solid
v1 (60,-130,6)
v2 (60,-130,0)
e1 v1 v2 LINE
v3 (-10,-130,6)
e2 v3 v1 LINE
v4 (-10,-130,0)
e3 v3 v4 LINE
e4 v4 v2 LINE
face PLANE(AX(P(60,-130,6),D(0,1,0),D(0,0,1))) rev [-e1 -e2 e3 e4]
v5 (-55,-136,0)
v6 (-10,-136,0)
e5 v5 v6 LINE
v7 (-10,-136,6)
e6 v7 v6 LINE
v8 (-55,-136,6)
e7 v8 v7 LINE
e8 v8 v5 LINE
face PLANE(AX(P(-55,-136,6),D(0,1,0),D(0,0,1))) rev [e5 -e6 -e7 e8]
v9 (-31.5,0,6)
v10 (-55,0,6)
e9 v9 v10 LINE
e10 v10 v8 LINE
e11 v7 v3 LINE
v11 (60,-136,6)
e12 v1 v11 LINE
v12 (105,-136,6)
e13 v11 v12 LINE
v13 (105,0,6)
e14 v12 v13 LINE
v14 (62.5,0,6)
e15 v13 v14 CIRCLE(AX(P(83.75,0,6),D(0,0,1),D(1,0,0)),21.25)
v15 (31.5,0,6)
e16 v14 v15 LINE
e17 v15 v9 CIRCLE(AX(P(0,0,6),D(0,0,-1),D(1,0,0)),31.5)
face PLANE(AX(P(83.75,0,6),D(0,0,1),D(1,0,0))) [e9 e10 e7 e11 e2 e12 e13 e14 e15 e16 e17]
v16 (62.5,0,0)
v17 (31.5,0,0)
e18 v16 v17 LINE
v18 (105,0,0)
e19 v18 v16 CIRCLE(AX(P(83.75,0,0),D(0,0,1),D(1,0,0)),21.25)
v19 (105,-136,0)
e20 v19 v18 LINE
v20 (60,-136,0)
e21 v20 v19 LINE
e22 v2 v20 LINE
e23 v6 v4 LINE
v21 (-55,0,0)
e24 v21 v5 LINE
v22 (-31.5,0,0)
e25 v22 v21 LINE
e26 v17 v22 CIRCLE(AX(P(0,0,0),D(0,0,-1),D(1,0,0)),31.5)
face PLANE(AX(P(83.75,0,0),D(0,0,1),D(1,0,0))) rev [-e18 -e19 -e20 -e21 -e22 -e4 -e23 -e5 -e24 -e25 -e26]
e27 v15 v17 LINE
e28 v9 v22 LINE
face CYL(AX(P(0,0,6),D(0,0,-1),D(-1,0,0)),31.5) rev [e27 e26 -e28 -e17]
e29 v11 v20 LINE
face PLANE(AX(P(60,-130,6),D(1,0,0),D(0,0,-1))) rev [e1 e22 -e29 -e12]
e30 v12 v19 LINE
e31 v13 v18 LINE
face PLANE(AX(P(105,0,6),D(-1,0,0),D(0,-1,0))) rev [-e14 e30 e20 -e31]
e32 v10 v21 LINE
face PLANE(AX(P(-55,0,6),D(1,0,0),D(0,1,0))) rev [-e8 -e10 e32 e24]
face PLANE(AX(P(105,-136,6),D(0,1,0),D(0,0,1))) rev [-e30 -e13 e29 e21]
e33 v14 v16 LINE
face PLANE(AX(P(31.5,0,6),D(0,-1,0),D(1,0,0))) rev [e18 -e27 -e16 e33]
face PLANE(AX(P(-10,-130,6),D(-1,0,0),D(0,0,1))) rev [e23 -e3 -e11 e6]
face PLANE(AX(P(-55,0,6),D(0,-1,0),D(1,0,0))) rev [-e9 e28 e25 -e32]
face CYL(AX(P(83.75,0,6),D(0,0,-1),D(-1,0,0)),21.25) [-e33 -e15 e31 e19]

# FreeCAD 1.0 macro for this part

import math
import FreeCAD as App
import Part
import Sketcher

doc = App.newDocument("Part")
params = doc.addObject("Spreadsheet::Sheet", "Params")
for row, (alias, value) in enumerate([
    ("sketch1_radius", "31.5 mm"),
    ("sketch1_width", "45 mm"),
    ("sketch1_width2", "70 mm"),
    ("sketch1_width3", "31 mm"),
    ("sketch1_height", "136 mm"),
    ("pad1_length", "6 mm"),
], start=1):
    params.set(f"A{row}", alias)
    params.set(f"B{row}", "=" + value)
    params.setAlias(f"B{row}", alias)

body = doc.addObject("PartDesign::Body", "Body")

# Sketch on XY plane
sketch1 = body.newObject("Sketcher::SketchObject", "Sketch")
sketch1.AttachmentSupport = (doc.getObject("XY_Plane"), [""])
sketch1.MapMode = "FlatFace"
sketch1.addGeometry(Part.LineSegment(App.Vector(-32, 0, 0), App.Vector(-55, 0, 0)), False)
sketch1.addGeometry(Part.LineSegment(App.Vector(-55, 0, 0), App.Vector(-55, -136, 0)), False)
sketch1.addGeometry(Part.LineSegment(App.Vector(-55, -136, 0), App.Vector(-10, -136, 0)), False)
sketch1.addGeometry(Part.LineSegment(App.Vector(-10, -136, 0), App.Vector(-10, -130, 0)), False)
sketch1.addGeometry(Part.LineSegment(App.Vector(-10, -130, 0), App.Vector(60, -130, 0)), False)
sketch1.addGeometry(Part.LineSegment(App.Vector(60, -130, 0), App.Vector(60, -136, 0)), False)
sketch1.addGeometry(Part.LineSegment(App.Vector(60, -136, 0), App.Vector(105, -136, 0)), False)
sketch1.addGeometry(Part.LineSegment(App.Vector(105, -136, 0), App.Vector(105, 0, 0)), False)
sketch1.addGeometry(Part.ArcOfCircle(Part.Circle(App.Vector(84, 0, 0), App.Vector(0, 0, 1), 21), math.radians(0), math.radians(180)), False)
sketch1.addGeometry(Part.LineSegment(App.Vector(62, 0, 0), App.Vector(32, 0, 0)), False)
sketch1.addGeometry(Part.ArcOfCircle(Part.Circle(App.Vector(0, 0, 0), App.Vector(0, 0, 1), 32), math.radians(180), math.radians(360)), False)
sketch1.addConstraint(Sketcher.Constraint("Coincident", 0, 2, 1, 1))
sketch1.addConstraint(Sketcher.Constraint("Coincident", 1, 2, 2, 1))
sketch1.addConstraint(Sketcher.Constraint("Coincident", 2, 2, 3, 1))
sketch1.addConstraint(Sketcher.Constraint("Coincident", 3, 2, 4, 1))
sketch1.addConstraint(Sketcher.Constraint("Coincident", 4, 2, 5, 1))
sketch1.addConstraint(Sketcher.Constraint("Coincident", 5, 2, 6, 1))
sketch1.addConstraint(Sketcher.Constraint("Coincident", 6, 2, 7, 1))
sketch1.addConstraint(Sketcher.Constraint("Tangent", 7, 2, 8, 1))
sketch1.addConstraint(Sketcher.Constraint("Coincident", 8, 2, 9, 1))
sketch1.addConstraint(Sketcher.Constraint("Coincident", 9, 2, 10, 2))
sketch1.addConstraint(Sketcher.Constraint("Coincident", 10, 1, 0, 1))
sketch1.addConstraint(Sketcher.Constraint("Horizontal", 0))
sketch1.addConstraint(Sketcher.Constraint("Vertical", 1))
sketch1.addConstraint(Sketcher.Constraint("Horizontal", 2))
sketch1.addConstraint(Sketcher.Constraint("Vertical", 3))
sketch1.addConstraint(Sketcher.Constraint("Horizontal", 4))
sketch1.addConstraint(Sketcher.Constraint("Vertical", 5))
sketch1.addConstraint(Sketcher.Constraint("Horizontal", 6))
sketch1.addConstraint(Sketcher.Constraint("Vertical", 7))
sketch1.addConstraint(Sketcher.Constraint("Horizontal", 9))
sketch1.addConstraint(Sketcher.Constraint("Coincident", 10, 3, -1, 1))
sketch1.addConstraint(Sketcher.Constraint("PointOnObject", 8, 3, -1))
sketch1.addConstraint(Sketcher.Constraint("PointOnObject", 0, 2, -1))
sketch1.addConstraint(Sketcher.Constraint("PointOnObject", 8, 2, -1))
sketch1.addConstraint(Sketcher.Constraint("Horizontal", 2, 2, 5, 2))
sketch1.addConstraint(Sketcher.Constraint("Equal", 2, 6))
sketch1.addConstraint(Sketcher.Constraint("Radius", 10, 31.5))
sketch1.addConstraint(Sketcher.Constraint("DistanceX", 2, 1, 2, 2, 45.0))
sketch1.addConstraint(Sketcher.Constraint("DistanceX", 4, 1, 4, 2, 70.0))
sketch1.addConstraint(Sketcher.Constraint("DistanceX", 9, 2, 9, 1, 31.0))
sketch1.addConstraint(Sketcher.Constraint("DistanceY", 1, 2, 1, 1, 136.0))
sketch1.addConstraint(Sketcher.Constraint("DistanceY", 3, 1, 3, 2, 6.0))
sketch1.addConstraint(Sketcher.Constraint("Radius", 8, 21.25))
sketch1.setExpression("Constraints[26]", "Params.sketch1_radius")
sketch1.setExpression("Constraints[27]", "Params.sketch1_width")
sketch1.setExpression("Constraints[28]", "Params.sketch1_width2")
sketch1.setExpression("Constraints[29]", "Params.sketch1_width3")
sketch1.setExpression("Constraints[30]", "Params.sketch1_height")
pad1 = body.newObject("PartDesign::Pad", "Pad")
pad1.Profile = sketch1
pad1.setExpression("Length", "Params.pad1_length")

doc.recompute()
